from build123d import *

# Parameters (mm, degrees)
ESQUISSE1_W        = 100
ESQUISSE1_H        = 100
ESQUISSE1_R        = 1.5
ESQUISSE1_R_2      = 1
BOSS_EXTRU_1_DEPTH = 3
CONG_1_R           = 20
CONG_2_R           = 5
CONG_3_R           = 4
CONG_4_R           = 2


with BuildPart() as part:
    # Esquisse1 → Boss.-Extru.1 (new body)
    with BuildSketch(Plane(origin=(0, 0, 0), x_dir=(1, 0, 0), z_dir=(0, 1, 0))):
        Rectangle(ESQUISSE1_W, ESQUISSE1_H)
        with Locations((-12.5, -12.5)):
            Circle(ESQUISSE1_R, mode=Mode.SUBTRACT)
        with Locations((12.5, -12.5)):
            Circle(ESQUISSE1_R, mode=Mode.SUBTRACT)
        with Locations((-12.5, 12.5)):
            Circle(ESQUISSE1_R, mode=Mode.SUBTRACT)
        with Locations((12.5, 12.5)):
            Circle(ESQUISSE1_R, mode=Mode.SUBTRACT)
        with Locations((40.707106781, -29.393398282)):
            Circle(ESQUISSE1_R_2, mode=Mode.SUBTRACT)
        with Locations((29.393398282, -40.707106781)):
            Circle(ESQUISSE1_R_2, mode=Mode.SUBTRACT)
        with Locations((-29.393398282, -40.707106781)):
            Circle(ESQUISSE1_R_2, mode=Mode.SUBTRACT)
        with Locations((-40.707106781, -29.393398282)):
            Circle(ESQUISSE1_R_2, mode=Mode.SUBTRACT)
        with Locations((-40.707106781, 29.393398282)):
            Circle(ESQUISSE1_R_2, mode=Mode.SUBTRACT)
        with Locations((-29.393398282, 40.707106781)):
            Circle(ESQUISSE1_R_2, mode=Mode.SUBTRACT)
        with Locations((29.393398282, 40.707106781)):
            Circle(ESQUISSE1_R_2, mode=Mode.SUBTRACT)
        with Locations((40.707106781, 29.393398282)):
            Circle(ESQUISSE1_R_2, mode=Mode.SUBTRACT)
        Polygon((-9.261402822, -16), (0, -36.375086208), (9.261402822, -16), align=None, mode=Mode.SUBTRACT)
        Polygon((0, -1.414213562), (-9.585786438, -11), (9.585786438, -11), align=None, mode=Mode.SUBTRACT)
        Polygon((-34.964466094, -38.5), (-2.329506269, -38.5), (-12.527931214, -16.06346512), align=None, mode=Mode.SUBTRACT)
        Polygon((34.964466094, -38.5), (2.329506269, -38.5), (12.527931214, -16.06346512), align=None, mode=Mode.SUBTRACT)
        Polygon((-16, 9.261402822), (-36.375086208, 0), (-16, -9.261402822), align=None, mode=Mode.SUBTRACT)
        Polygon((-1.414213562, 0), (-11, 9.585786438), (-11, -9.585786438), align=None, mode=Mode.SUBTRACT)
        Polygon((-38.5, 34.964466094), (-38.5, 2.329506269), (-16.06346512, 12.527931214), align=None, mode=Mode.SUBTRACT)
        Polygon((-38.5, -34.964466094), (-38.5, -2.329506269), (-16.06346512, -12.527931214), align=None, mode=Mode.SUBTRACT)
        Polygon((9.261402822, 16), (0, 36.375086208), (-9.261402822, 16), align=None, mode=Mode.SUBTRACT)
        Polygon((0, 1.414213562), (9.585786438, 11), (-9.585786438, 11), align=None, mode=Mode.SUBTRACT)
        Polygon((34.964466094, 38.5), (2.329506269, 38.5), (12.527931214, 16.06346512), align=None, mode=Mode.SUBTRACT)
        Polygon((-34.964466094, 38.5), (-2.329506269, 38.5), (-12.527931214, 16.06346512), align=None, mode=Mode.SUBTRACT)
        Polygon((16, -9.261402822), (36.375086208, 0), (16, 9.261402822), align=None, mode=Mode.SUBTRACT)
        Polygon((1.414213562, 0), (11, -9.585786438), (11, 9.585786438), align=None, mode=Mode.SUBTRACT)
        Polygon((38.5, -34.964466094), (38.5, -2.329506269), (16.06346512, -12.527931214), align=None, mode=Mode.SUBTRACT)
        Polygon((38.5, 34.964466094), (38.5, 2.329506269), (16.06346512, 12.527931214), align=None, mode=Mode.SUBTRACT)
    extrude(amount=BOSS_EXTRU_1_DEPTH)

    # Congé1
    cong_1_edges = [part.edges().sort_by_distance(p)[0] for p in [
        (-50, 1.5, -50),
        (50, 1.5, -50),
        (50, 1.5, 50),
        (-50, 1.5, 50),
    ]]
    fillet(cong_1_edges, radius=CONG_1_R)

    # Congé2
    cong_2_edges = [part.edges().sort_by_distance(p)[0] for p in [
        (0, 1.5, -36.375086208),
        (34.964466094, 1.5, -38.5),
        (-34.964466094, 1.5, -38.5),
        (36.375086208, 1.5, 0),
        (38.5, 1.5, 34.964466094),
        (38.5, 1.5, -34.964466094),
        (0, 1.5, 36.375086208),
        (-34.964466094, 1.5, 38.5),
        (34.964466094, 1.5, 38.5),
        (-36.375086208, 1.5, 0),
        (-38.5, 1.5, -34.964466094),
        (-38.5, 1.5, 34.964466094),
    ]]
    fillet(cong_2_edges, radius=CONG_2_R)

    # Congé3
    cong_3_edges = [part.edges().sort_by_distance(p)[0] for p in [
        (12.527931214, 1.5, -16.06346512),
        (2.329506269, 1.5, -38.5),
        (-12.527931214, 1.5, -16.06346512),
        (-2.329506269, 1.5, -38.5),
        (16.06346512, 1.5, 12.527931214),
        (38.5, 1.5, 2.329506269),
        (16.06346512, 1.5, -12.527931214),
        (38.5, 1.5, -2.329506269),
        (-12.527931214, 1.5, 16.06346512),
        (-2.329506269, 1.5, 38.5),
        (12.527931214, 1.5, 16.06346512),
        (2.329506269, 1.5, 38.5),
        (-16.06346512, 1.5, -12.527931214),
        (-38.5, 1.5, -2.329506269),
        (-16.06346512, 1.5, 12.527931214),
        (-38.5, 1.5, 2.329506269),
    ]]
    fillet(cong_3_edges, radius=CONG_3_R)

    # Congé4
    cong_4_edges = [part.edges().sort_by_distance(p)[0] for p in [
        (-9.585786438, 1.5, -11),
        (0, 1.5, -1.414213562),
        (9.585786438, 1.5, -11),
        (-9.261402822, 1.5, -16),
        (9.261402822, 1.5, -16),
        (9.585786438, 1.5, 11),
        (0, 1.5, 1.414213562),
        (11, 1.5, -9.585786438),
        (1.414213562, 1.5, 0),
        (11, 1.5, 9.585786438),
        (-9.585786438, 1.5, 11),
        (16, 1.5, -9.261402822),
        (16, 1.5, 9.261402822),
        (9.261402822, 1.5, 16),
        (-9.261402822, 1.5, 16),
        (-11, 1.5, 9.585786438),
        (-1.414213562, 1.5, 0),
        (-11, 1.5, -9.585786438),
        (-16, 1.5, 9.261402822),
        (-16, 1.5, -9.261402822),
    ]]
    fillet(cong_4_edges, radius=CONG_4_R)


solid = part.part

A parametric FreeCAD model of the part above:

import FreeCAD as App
import Part
import Sketcher
Q = App.Units.Quantity


def edges_at(feature, points):
    """Names of the edges that pass closest to the given points."""
    edges = feature.Shape.Edges
    near = lambda p: min(range(len(edges)), key=lambda i: edges[i].distToShape(Part.Vertex(*p))[0])
    return sorted({f"Edge{near(p) + 1}" for p in points})

doc = App.newDocument("Part")
params = doc.addObject("Spreadsheet::Sheet", "Params")
for row, (alias, value) in enumerate([
    ("sketch1_diameter", "2 mm"),
    ("sketch1_diameter2", "3 mm"),
    ("sketch1_width", "100 mm"),
    ("pad1_length", "3 mm"),
    ("fillet_radius", "20 mm"),
    ("fillet2_radius", "5 mm"),
    ("fillet3_radius", "4 mm"),
    ("fillet4_radius", "2 mm"),
], start=1):
    params.set(f"A{row}", alias)
    params.set(f"B{row}", "=" + value)
    params.setAlias(f"B{row}", alias)

body = doc.addObject("PartDesign::Body", "Body")

# Sketch on XZ plane
sketch1 = doc.addObject("Sketcher::SketchObject", "Sketch")
body.addObject(sketch1)
sketch1.AttachmentSupport = (doc.XZ_Plane, [""])
sketch1.MapMode = "FlatFace"
sketch1.addGeometry([
    Part.LineSegment(App.Vector(-50, -50, 0), App.Vector(-50, 50, 0)),  # 0
    Part.LineSegment(App.Vector(-50, 50, 0), App.Vector(50, 50, 0)),  # 1
    Part.LineSegment(App.Vector(50, 50, 0), App.Vector(50, -50, 0)),  # 2
    Part.LineSegment(App.Vector(50, -50, 0), App.Vector(-50, -50, 0)),  # 3
    Part.Circle(App.Vector(-29.4, 40.7, 0), App.Vector(0, 0, 1), 1),  # 4
    Part.Circle(App.Vector(-40.7, 29.4, 0), App.Vector(0, 0, 1), 1),  # 5
    Part.LineSegment(App.Vector(-2.3, 38.5, 0), App.Vector(-35, 38.5, 0)),  # 6
    Part.LineSegment(App.Vector(-35, 38.5, 0), App.Vector(-12.5, 16.1, 0)),  # 7
    Part.LineSegment(App.Vector(-12.5, 16.1, 0), App.Vector(-2.3, 38.5, 0)),  # 8
    Part.LineSegment(App.Vector(0, 36.4, 0), App.Vector(-9.3, 16, 0)),  # 9
    Part.LineSegment(App.Vector(-9.3, 16, 0), App.Vector(9.3, 16, 0)),  # 10
    Part.LineSegment(App.Vector(9.3, 16, 0), App.Vector(0, 36.4, 0)),  # 11
    Part.LineSegment(App.Vector(-16.1, 12.5, 0), App.Vector(-38.5, 35, 0)),  # 12
    Part.LineSegment(App.Vector(-38.5, 35, 0), App.Vector(-38.5, 2.3, 0)),  # 13
    Part.LineSegment(App.Vector(-38.5, 2.3, 0), App.Vector(-16.1, 12.5, 0)),  # 14
    Part.LineSegment(App.Vector(-36.4, 0, 0), App.Vector(-16, -9.3, 0)),  # 15
    Part.LineSegment(App.Vector(-16, -9.3, 0), App.Vector(-16, 9.3, 0)),  # 16
    Part.LineSegment(App.Vector(-16, 9.3, 0), App.Vector(-36.4, 0, 0)),  # 17
    Part.Circle(App.Vector(-12.5, 12.5, 0), App.Vector(0, 0, 1), 1.5),  # 18
    Part.LineSegment(App.Vector(-9.6, 11, 0), App.Vector(0, 1.4, 0)),  # 19
    Part.LineSegment(App.Vector(0, 1.4, 0), App.Vector(9.6, 11, 0)),  # 20
    Part.LineSegment(App.Vector(9.6, 11, 0), App.Vector(-9.6, 11, 0)),  # 21
    Part.LineSegment(App.Vector(-11, -9.6, 0), App.Vector(-1.4, 0, 0)),  # 22
    Part.LineSegment(App.Vector(-1.4, 0, 0), App.Vector(-11, 9.6, 0)),  # 23
    Part.LineSegment(App.Vector(-11, 9.6, 0), App.Vector(-11, -9.6, 0)),  # 24
    Part.LineSegment(App.Vector(12.5, 16.1, 0), App.Vector(35, 38.5, 0)),  # 25
    Part.LineSegment(App.Vector(35, 38.5, 0), App.Vector(2.3, 38.5, 0)),  # 26
    Part.LineSegment(App.Vector(2.3, 38.5, 0), App.Vector(12.5, 16.1, 0)),  # 27
    Part.Circle(App.Vector(29.4, 40.7, 0), App.Vector(0, 0, 1), 1),  # 28
    Part.Circle(App.Vector(40.7, 29.4, 0), App.Vector(0, 0, 1), 1),  # 29
    Part.Circle(App.Vector(12.5, 12.5, 0), App.Vector(0, 0, 1), 1.5),  # 30
    Part.LineSegment(App.Vector(11, 9.6, 0), App.Vector(1.4, 0, 0)),  # 31
    Part.LineSegment(App.Vector(1.4, 0, 0), App.Vector(11, -9.6, 0)),  # 32
    Part.LineSegment(App.Vector(11, -9.6, 0), App.Vector(11, 9.6, 0)),  # 33
    Part.LineSegment(App.Vector(38.5, 2.3, 0), App.Vector(38.5, 35, 0)),  # 34
    Part.LineSegment(App.Vector(38.5, 35, 0), App.Vector(16.1, 12.5, 0)),  # 35
    Part.LineSegment(App.Vector(16.1, 12.5, 0), App.Vector(38.5, 2.3, 0)),  # 36
    Part.LineSegment(App.Vector(36.4, 0, 0), App.Vector(16, 9.3, 0)),  # 37
    Part.LineSegment(App.Vector(16, 9.3, 0), App.Vector(16, -9.3, 0)),  # 38
    Part.LineSegment(App.Vector(16, -9.3, 0), App.Vector(36.4, 0, 0)),  # 39
    Part.LineSegment(App.Vector(-38.5, -2.3, 0), App.Vector(-38.5, -35, 0)),  # 40
    Part.LineSegment(App.Vector(-38.5, -35, 0), App.Vector(-16.1, -12.5, 0)),  # 41
    Part.LineSegment(App.Vector(-16.1, -12.5, 0), App.Vector(-38.5, -2.3, 0)),  # 42
    Part.LineSegment(App.Vector(9.6, -11, 0), App.Vector(0, -1.4, 0)),  # 43
    Part.LineSegment(App.Vector(0, -1.4, 0), App.Vector(-9.6, -11, 0)),  # 44
    Part.LineSegment(App.Vector(-9.6, -11, 0), App.Vector(9.6, -11, 0)),  # 45
    Part.Circle(App.Vector(-12.5, -12.5, 0), App.Vector(0, 0, 1), 1.5),  # 46
    Part.Circle(App.Vector(-40.7, -29.4, 0), App.Vector(0, 0, 1), 1),  # 47
    Part.Circle(App.Vector(-29.4, -40.7, 0), App.Vector(0, 0, 1), 1),  # 48
    Part.LineSegment(App.Vector(-12.5, -16.1, 0), App.Vector(-35, -38.5, 0)),  # 49
    Part.LineSegment(App.Vector(-35, -38.5, 0), App.Vector(-2.3, -38.5, 0)),  # 50
    Part.LineSegment(App.Vector(-2.3, -38.5, 0), App.Vector(-12.5, -16.1, 0)),  # 51
    Part.LineSegment(App.Vector(0, -36.4, 0), App.Vector(9.3, -16, 0)),  # 52
    Part.LineSegment(App.Vector(9.3, -16, 0), App.Vector(-9.3, -16, 0)),  # 53
    Part.LineSegment(App.Vector(-9.3, -16, 0), App.Vector(0, -36.4, 0)),  # 54
    Part.Circle(App.Vector(12.5, -12.5, 0), App.Vector(0, 0, 1), 1.5),  # 55
    Part.LineSegment(App.Vector(16.1, -12.5, 0), App.Vector(38.5, -35, 0)),  # 56
    Part.LineSegment(App.Vector(38.5, -35, 0), App.Vector(38.5, -2.3, 0)),  # 57
    Part.LineSegment(App.Vector(38.5, -2.3, 0), App.Vector(16.1, -12.5, 0)),  # 58
    Part.LineSegment(App.Vector(2.3, -38.5, 0), App.Vector(35, -38.5, 0)),  # 59
    Part.LineSegment(App.Vector(35, -38.5, 0), App.Vector(12.5, -16.1, 0)),  # 60
    Part.LineSegment(App.Vector(12.5, -16.1, 0), App.Vector(2.3, -38.5, 0)),  # 61
    Part.Circle(App.Vector(40.7, -29.4, 0), App.Vector(0, 0, 1), 1),  # 62
    Part.Circle(App.Vector(29.4, -40.7, 0), App.Vector(0, 0, 1), 1),  # 63
], False)
sketch1.addConstraint([
    Sketcher.Constraint("Coincident", 0, 2, 1, 1),
    Sketcher.Constraint("Coincident", 1, 2, 2, 1),
    Sketcher.Constraint("Coincident", 2, 2, 3, 1),
    Sketcher.Constraint("Coincident", 3, 2, 0, 1),
    Sketcher.Constraint("Coincident", 6, 2, 7, 1),
    Sketcher.Constraint("Coincident", 7, 2, 8, 1),
    Sketcher.Constraint("Coincident", 8, 2, 6, 1),
    Sketcher.Constraint("Coincident", 9, 2, 10, 1),
    Sketcher.Constraint("Coincident", 10, 2, 11, 1),
    Sketcher.Constraint("Coincident", 11, 2, 9, 1),
    Sketcher.Constraint("Coincident", 12, 2, 13, 1),
    Sketcher.Constraint("Coincident", 13, 2, 14, 1),
    Sketcher.Constraint("Coincident", 14, 2, 12, 1),
    Sketcher.Constraint("Coincident", 15, 2, 16, 1),
    Sketcher.Constraint("Coincident", 16, 2, 17, 1),
    Sketcher.Constraint("Coincident", 17, 2, 15, 1),
    Sketcher.Constraint("Coincident", 19, 2, 20, 1),
    Sketcher.Constraint("Coincident", 20, 2, 21, 1),
    Sketcher.Constraint("Coincident", 21, 2, 19, 1),
    Sketcher.Constraint("Coincident", 22, 2, 23, 1),
    Sketcher.Constraint("Coincident", 23, 2, 24, 1),
    Sketcher.Constraint("Coincident", 24, 2, 22, 1),
    Sketcher.Constraint("Coincident", 25, 2, 26, 1),
    Sketcher.Constraint("Coincident", 26, 2, 27, 1),
    Sketcher.Constraint("Coincident", 27, 2, 25, 1),
    Sketcher.Constraint("Coincident", 31, 2, 32, 1),
    Sketcher.Constraint("Coincident", 32, 2, 33, 1),
    Sketcher.Constraint("Coincident", 33, 2, 31, 1),
    Sketcher.Constraint("Coincident", 34, 2, 35, 1),
    Sketcher.Constraint("Coincident", 35, 2, 36, 1),
    Sketcher.Constraint("Coincident", 36, 2, 34, 1),
    Sketcher.Constraint("Coincident", 37, 2, 38, 1),
    Sketcher.Constraint("Coincident", 38, 2, 39, 1),
    Sketcher.Constraint("Coincident", 39, 2, 37, 1),
    Sketcher.Constraint("Coincident", 40, 2, 41, 1),
    Sketcher.Constraint("Coincident", 41, 2, 42, 1),
    Sketcher.Constraint("Coincident", 42, 2, 40, 1),
    Sketcher.Constraint("Coincident", 43, 2, 44, 1),
    Sketcher.Constraint("Coincident", 44, 2, 45, 1),
    Sketcher.Constraint("Coincident", 45, 2, 43, 1),
    Sketcher.Constraint("Coincident", 49, 2, 50, 1),
    Sketcher.Constraint("Coincident", 50, 2, 51, 1),
    Sketcher.Constraint("Coincident", 51, 2, 49, 1),
    Sketcher.Constraint("Coincident", 52, 2, 53, 1),
    Sketcher.Constraint("Coincident", 53, 2, 54, 1),
    Sketcher.Constraint("Coincident", 54, 2, 52, 1),
    Sketcher.Constraint("Coincident", 56, 2, 57, 1),
    Sketcher.Constraint("Coincident", 57, 2, 58, 1),
    Sketcher.Constraint("Coincident", 58, 2, 56, 1),
    Sketcher.Constraint("Coincident", 59, 2, 60, 1),
    Sketcher.Constraint("Coincident", 60, 2, 61, 1),
    Sketcher.Constraint("Coincident", 61, 2, 59, 1),
    Sketcher.Constraint("Vertical", 0),
    Sketcher.Constraint("Horizontal", 1),
    Sketcher.Constraint("Vertical", 2),
    Sketcher.Constraint("Horizontal", 3),
    Sketcher.Constraint("Horizontal", 6),
    Sketcher.Constraint("Horizontal", 10),
    Sketcher.Constraint("Vertical", 13),
    Sketcher.Constraint("Vertical", 16),
    Sketcher.Constraint("Horizontal", 21),
    Sketcher.Constraint("Vertical", 24),
    Sketcher.Constraint("Horizontal", 26),
    Sketcher.Constraint("Vertical", 33),
    Sketcher.Constraint("Vertical", 34),
    Sketcher.Constraint("Vertical", 38),
    Sketcher.Constraint("Vertical", 40),
    Sketcher.Constraint("Horizontal", 45),
    Sketcher.Constraint("Horizontal", 50),
    Sketcher.Constraint("Horizontal", 53),
    Sketcher.Constraint("Vertical", 57),
    Sketcher.Constraint("Horizontal", 59),
    Sketcher.Constraint("Equal", 4, 5),
    Sketcher.Constraint("Equal", 5, 28),
    Sketcher.Constraint("Equal", 28, 29),
    Sketcher.Constraint("Equal", 18, 30),
    Sketcher.Constraint("Equal", 30, 46),
    Sketcher.Constraint("Equal", 29, 47),
    Sketcher.Constraint("Equal", 47, 48),
    Sketcher.Constraint("Equal", 46, 55),
    Sketcher.Constraint("Equal", 48, 62),
    Sketcher.Constraint("Equal", 62, 63),
    Sketcher.Constraint("Symmetric", 30, 3, 46, 3, -1, 1),
    Sketcher.Constraint("Symmetric", 29, 3, 47, 3, -1, 1),
    Sketcher.Constraint("Symmetric", 28, 3, 48, 3, -1, 1),
    Sketcher.Constraint("Symmetric", 18, 3, 55, 3, -1, 1),
    Sketcher.Constraint("Symmetric", 5, 3, 62, 3, -1, 1),
    Sketcher.Constraint("Symmetric", 4, 3, 63, 3, -1, 1),
    Sketcher.Constraint("Symmetric", 0, 2, 2, 2, -1, 1),
    Sketcher.Constraint("Symmetric", 22, 2, 31, 2, -1, 1),
    Sketcher.Constraint("Symmetric", 23, 2, 32, 2, -1, 1),
    Sketcher.Constraint("Symmetric", 15, 2, 37, 2, -1, 1),
    Sketcher.Constraint("Symmetric", 17, 2, 39, 2, -1, 1),
    Sketcher.Constraint("Symmetric", 34, 2, 40, 2, -1, 1),
    Sketcher.Constraint("Symmetric", 35, 2, 41, 2, -1, 1),
    Sketcher.Constraint("Symmetric", 19, 2, 43, 2, -1, 1),
    Sketcher.Constraint("Symmetric", 20, 2, 44, 2, -1, 1),
    Sketcher.Constraint("Symmetric", 25, 2, 49, 2, -1, 1),
    Sketcher.Constraint("Symmetric", 27, 2, 51, 2, -1, 1),
    Sketcher.Constraint("Symmetric", 9, 2, 52, 2, -1, 1),
    Sketcher.Constraint("Symmetric", 11, 2, 54, 2, -1, 1),
    Sketcher.Constraint("Symmetric", 12, 2, 56, 2, -1, 1),
    Sketcher.Constraint("Symmetric", 14, 2, 58, 2, -1, 1),
    Sketcher.Constraint("Symmetric", 6, 2, 59, 2, -1, 1),
    Sketcher.Constraint("Symmetric", 7, 2, 60, 2, -1, 1),
    Sketcher.Constraint("Symmetric", 4, 3, 28, 3, -2),
    Sketcher.Constraint("Symmetric", 5, 3, 29, 3, -2),
    Sketcher.Constraint("Symmetric", 18, 3, 30, 3, -2),
    Sketcher.Constraint("Symmetric", 6, 2, 25, 2, -2),
    Sketcher.Constraint("Symmetric", 7, 2, 27, 2, -2),
    Sketcher.Constraint("Symmetric", 12, 2, 34, 2, -2),
    Sketcher.Constraint("Symmetric", 14, 2, 35, 2, -2),
    Sketcher.Constraint("PointOnObject", 11, 2, -2),
    Sketcher.Constraint("PointOnObject", 17, 2, -1),
    Sketcher.Constraint("PointOnObject", 19, 2, -2),
    Sketcher.Constraint("PointOnObject", 22, 2, -1),
    Sketcher.Constraint("Parallel", 8, 9),
    Sketcher.Constraint("Parallel", 7, 12),
    Sketcher.Constraint("Perpendicular", 11, 14),
    Sketcher.Constraint("Perpendicular", 9, 15),
    Sketcher.Constraint("Parallel", 14, 17),
    Sketcher.Constraint("Parallel", 12, 19),
    Sketcher.Constraint("Perpendicular", 19, 20),
    Sketcher.Constraint("Parallel", 20, 22),
    Sketcher.Constraint("Perpendicular", 22, 23),
    Sketcher.Constraint("Perpendicular", 23, 25),
    Sketcher.Constraint("Perpendicular", 17, 27),
    Sketcher.Constraint("Parallel", 25, 31),
    Sketcher.Constraint("Parallel", 15, 36),
    Sketcher.Constraint("Perpendicular", 27, 39),
    Sketcher.Constraint("Parallel", 37, 42),
    Sketcher.Constraint("Perpendicular", 41, 43),
    Sketcher.Constraint("Perpendicular", 39, 51),
    Sketcher.Constraint("Parallel", 51, 54),
    Sketcher.Constraint("Perpendicular", 54, 58),
    Sketcher.Constraint("Parallel", 52, 61),
    Sketcher.Constraint("Horizontal", 13, 2, 36, 2),
    Sketcher.Constraint("Equal", 3, 0),
    Sketcher.Constraint("Equal", 59, 13),
    Sketcher.Constraint("Equal", 53, 16),
    Sketcher.Constraint("Equal", 45, 24),
    Sketcher.Constraint("Diameter", 4, Q("2 mm")),
    Sketcher.Constraint("Diameter", 18, Q("3 mm")),
    Sketcher.Constraint("DistanceX", 1, 1, 1, 2, Q("100 mm")),
    Sketcher.Constraint("DistanceY", -1, 1, 9, 2, Q("16 mm")),
    Sketcher.Constraint("DistanceX", 15, 2, -1, 1, Q("16 mm")),
    Sketcher.Constraint("DistanceY", -1, 1, 20, 2, Q("11 mm")),
    Sketcher.Constraint("DistanceX", 23, 2, -1, 1, Q("11 mm")),
    Sketcher.Constraint("DistanceX", 18, 3, -1, 1, Q("12.5 mm")),
    Sketcher.Constraint("DistanceY", -1, 1, 18, 3, Q("12.5 mm")),
    Sketcher.Constraint("DistanceY", -1, 1, 6, 2, Q("38.5 mm")),
    Sketcher.Constraint("DistanceX", 12, 2, -1, 1, Q("38.5 mm")),
    Sketcher.Constraint("DistanceX", 6, 2, 6, 1, Q("32.63496 mm")),
    Sketcher.Constraint("DistanceX", 4, 3, -1, 1, Q("29.393398 mm")),
    Sketcher.Constraint("DistanceY", -1, 1, 5, 3, Q("29.393398 mm")),
    Sketcher.Constraint("Distance", 7, Q("31.730052 mm")),
    Sketcher.Constraint("Distance", 9, Q("22.381191 mm")),
    Sketcher.Constraint("Distance", 19, Q("13.556349 mm")),
    Sketcher.Constraint("DistanceX", 7, 2, -1, 1, Q("12.527931 mm")),
    Sketcher.Constraint("DistanceY", -1, 1, 14, 2, Q("12.527931 mm")),
    Sketcher.Constraint("DistanceY", -1, 1, 4, 3, Q("40.707107 mm")),
    Sketcher.Constraint("DistanceX", 5, 3, -1, 1, Q("40.707107 mm")),
])
sketch1.setExpression("Constraints[141]", "Params.sketch1_diameter")
sketch1.setExpression("Constraints[142]", "Params.sketch1_diameter2")
sketch1.setExpression("Constraints[143]", "Params.sketch1_width")
pad1 = doc.addObject("PartDesign::Pad", "Pad")
body.addObject(pad1)
pad1.Profile = sketch1
pad1.setExpression("Length", "Params.pad1_length")
pad1.Reversed = True
doc.recompute()

fillet = doc.addObject("PartDesign::Fillet", "Fillet")
body.addObject(fillet)
fillet.Base = (pad1, edges_at(pad1, [
    (-50, 1.5, -50),
    (50, 1.5, -50),
    (50, 1.5, 50),
    (-50, 1.5, 50),
]))
fillet.setExpression("Radius", "Params.fillet_radius")
doc.recompute()

fillet2 = doc.addObject("PartDesign::Fillet", "Fillet001")
body.addObject(fillet2)
fillet2.Base = (fillet, edges_at(fillet, [
    (0, 1.5, -36.375),
    (34.964, 1.5, -38.5),
    (-34.964, 1.5, -38.5),
    (36.375, 1.5, 0),
    (38.5, 1.5, 34.964),
    (38.5, 1.5, -34.964),
    (0, 1.5, 36.375),
    (-34.964, 1.5, 38.5),
    (34.964, 1.5, 38.5),
    (-36.375, 1.5, 0),
    (-38.5, 1.5, -34.964),
    (-38.5, 1.5, 34.964),
]))
fillet2.setExpression("Radius", "Params.fillet2_radius")
doc.recompute()

fillet3 = doc.addObject("PartDesign::Fillet", "Fillet002")
body.addObject(fillet3)
fillet3.Base = (fillet2, edges_at(fillet2, [
    (12.528, 1.5, -16.063),
    (2.33, 1.5, -38.5),
    (-12.528, 1.5, -16.063),
    (-2.33, 1.5, -38.5),
    (16.063, 1.5, 12.528),
    (38.5, 1.5, 2.33),
    (16.063, 1.5, -12.528),
    (38.5, 1.5, -2.33),
    (-12.528, 1.5, 16.063),
    (-2.33, 1.5, 38.5),
    (12.528, 1.5, 16.063),
    (2.33, 1.5, 38.5),
    (-16.063, 1.5, -12.528),
    (-38.5, 1.5, -2.33),
    (-16.063, 1.5, 12.528),
    (-38.5, 1.5, 2.33),
]))
fillet3.setExpression("Radius", "Params.fillet3_radius")
doc.recompute()

fillet4 = doc.addObject("PartDesign::Fillet", "Fillet003")
body.addObject(fillet4)
fillet4.Base = (fillet3, edges_at(fillet3, [
    (-9.586, 1.5, -11),
    (0, 1.5, -1.414),
    (9.586, 1.5, -11),
    (-9.261, 1.5, -16),
    (9.261, 1.5, -16),
    (9.586, 1.5, 11),
    (0, 1.5, 1.414),
    (11, 1.5, -9.586),
    (1.414, 1.5, 0),
    (11, 1.5, 9.586),
    (-9.586, 1.5, 11),
    (16, 1.5, -9.261),
    (16, 1.5, 9.261),
    (9.261, 1.5, 16),
    (-9.261, 1.5, 16),
    (-11, 1.5, 9.586),
    (-1.414, 1.5, 0),
    (-11, 1.5, -9.586),
    (-16, 1.5, 9.261),
    (-16, 1.5, -9.261),
]))
fillet4.setExpression("Radius", "Params.fillet4_radius")

doc.recompute()
